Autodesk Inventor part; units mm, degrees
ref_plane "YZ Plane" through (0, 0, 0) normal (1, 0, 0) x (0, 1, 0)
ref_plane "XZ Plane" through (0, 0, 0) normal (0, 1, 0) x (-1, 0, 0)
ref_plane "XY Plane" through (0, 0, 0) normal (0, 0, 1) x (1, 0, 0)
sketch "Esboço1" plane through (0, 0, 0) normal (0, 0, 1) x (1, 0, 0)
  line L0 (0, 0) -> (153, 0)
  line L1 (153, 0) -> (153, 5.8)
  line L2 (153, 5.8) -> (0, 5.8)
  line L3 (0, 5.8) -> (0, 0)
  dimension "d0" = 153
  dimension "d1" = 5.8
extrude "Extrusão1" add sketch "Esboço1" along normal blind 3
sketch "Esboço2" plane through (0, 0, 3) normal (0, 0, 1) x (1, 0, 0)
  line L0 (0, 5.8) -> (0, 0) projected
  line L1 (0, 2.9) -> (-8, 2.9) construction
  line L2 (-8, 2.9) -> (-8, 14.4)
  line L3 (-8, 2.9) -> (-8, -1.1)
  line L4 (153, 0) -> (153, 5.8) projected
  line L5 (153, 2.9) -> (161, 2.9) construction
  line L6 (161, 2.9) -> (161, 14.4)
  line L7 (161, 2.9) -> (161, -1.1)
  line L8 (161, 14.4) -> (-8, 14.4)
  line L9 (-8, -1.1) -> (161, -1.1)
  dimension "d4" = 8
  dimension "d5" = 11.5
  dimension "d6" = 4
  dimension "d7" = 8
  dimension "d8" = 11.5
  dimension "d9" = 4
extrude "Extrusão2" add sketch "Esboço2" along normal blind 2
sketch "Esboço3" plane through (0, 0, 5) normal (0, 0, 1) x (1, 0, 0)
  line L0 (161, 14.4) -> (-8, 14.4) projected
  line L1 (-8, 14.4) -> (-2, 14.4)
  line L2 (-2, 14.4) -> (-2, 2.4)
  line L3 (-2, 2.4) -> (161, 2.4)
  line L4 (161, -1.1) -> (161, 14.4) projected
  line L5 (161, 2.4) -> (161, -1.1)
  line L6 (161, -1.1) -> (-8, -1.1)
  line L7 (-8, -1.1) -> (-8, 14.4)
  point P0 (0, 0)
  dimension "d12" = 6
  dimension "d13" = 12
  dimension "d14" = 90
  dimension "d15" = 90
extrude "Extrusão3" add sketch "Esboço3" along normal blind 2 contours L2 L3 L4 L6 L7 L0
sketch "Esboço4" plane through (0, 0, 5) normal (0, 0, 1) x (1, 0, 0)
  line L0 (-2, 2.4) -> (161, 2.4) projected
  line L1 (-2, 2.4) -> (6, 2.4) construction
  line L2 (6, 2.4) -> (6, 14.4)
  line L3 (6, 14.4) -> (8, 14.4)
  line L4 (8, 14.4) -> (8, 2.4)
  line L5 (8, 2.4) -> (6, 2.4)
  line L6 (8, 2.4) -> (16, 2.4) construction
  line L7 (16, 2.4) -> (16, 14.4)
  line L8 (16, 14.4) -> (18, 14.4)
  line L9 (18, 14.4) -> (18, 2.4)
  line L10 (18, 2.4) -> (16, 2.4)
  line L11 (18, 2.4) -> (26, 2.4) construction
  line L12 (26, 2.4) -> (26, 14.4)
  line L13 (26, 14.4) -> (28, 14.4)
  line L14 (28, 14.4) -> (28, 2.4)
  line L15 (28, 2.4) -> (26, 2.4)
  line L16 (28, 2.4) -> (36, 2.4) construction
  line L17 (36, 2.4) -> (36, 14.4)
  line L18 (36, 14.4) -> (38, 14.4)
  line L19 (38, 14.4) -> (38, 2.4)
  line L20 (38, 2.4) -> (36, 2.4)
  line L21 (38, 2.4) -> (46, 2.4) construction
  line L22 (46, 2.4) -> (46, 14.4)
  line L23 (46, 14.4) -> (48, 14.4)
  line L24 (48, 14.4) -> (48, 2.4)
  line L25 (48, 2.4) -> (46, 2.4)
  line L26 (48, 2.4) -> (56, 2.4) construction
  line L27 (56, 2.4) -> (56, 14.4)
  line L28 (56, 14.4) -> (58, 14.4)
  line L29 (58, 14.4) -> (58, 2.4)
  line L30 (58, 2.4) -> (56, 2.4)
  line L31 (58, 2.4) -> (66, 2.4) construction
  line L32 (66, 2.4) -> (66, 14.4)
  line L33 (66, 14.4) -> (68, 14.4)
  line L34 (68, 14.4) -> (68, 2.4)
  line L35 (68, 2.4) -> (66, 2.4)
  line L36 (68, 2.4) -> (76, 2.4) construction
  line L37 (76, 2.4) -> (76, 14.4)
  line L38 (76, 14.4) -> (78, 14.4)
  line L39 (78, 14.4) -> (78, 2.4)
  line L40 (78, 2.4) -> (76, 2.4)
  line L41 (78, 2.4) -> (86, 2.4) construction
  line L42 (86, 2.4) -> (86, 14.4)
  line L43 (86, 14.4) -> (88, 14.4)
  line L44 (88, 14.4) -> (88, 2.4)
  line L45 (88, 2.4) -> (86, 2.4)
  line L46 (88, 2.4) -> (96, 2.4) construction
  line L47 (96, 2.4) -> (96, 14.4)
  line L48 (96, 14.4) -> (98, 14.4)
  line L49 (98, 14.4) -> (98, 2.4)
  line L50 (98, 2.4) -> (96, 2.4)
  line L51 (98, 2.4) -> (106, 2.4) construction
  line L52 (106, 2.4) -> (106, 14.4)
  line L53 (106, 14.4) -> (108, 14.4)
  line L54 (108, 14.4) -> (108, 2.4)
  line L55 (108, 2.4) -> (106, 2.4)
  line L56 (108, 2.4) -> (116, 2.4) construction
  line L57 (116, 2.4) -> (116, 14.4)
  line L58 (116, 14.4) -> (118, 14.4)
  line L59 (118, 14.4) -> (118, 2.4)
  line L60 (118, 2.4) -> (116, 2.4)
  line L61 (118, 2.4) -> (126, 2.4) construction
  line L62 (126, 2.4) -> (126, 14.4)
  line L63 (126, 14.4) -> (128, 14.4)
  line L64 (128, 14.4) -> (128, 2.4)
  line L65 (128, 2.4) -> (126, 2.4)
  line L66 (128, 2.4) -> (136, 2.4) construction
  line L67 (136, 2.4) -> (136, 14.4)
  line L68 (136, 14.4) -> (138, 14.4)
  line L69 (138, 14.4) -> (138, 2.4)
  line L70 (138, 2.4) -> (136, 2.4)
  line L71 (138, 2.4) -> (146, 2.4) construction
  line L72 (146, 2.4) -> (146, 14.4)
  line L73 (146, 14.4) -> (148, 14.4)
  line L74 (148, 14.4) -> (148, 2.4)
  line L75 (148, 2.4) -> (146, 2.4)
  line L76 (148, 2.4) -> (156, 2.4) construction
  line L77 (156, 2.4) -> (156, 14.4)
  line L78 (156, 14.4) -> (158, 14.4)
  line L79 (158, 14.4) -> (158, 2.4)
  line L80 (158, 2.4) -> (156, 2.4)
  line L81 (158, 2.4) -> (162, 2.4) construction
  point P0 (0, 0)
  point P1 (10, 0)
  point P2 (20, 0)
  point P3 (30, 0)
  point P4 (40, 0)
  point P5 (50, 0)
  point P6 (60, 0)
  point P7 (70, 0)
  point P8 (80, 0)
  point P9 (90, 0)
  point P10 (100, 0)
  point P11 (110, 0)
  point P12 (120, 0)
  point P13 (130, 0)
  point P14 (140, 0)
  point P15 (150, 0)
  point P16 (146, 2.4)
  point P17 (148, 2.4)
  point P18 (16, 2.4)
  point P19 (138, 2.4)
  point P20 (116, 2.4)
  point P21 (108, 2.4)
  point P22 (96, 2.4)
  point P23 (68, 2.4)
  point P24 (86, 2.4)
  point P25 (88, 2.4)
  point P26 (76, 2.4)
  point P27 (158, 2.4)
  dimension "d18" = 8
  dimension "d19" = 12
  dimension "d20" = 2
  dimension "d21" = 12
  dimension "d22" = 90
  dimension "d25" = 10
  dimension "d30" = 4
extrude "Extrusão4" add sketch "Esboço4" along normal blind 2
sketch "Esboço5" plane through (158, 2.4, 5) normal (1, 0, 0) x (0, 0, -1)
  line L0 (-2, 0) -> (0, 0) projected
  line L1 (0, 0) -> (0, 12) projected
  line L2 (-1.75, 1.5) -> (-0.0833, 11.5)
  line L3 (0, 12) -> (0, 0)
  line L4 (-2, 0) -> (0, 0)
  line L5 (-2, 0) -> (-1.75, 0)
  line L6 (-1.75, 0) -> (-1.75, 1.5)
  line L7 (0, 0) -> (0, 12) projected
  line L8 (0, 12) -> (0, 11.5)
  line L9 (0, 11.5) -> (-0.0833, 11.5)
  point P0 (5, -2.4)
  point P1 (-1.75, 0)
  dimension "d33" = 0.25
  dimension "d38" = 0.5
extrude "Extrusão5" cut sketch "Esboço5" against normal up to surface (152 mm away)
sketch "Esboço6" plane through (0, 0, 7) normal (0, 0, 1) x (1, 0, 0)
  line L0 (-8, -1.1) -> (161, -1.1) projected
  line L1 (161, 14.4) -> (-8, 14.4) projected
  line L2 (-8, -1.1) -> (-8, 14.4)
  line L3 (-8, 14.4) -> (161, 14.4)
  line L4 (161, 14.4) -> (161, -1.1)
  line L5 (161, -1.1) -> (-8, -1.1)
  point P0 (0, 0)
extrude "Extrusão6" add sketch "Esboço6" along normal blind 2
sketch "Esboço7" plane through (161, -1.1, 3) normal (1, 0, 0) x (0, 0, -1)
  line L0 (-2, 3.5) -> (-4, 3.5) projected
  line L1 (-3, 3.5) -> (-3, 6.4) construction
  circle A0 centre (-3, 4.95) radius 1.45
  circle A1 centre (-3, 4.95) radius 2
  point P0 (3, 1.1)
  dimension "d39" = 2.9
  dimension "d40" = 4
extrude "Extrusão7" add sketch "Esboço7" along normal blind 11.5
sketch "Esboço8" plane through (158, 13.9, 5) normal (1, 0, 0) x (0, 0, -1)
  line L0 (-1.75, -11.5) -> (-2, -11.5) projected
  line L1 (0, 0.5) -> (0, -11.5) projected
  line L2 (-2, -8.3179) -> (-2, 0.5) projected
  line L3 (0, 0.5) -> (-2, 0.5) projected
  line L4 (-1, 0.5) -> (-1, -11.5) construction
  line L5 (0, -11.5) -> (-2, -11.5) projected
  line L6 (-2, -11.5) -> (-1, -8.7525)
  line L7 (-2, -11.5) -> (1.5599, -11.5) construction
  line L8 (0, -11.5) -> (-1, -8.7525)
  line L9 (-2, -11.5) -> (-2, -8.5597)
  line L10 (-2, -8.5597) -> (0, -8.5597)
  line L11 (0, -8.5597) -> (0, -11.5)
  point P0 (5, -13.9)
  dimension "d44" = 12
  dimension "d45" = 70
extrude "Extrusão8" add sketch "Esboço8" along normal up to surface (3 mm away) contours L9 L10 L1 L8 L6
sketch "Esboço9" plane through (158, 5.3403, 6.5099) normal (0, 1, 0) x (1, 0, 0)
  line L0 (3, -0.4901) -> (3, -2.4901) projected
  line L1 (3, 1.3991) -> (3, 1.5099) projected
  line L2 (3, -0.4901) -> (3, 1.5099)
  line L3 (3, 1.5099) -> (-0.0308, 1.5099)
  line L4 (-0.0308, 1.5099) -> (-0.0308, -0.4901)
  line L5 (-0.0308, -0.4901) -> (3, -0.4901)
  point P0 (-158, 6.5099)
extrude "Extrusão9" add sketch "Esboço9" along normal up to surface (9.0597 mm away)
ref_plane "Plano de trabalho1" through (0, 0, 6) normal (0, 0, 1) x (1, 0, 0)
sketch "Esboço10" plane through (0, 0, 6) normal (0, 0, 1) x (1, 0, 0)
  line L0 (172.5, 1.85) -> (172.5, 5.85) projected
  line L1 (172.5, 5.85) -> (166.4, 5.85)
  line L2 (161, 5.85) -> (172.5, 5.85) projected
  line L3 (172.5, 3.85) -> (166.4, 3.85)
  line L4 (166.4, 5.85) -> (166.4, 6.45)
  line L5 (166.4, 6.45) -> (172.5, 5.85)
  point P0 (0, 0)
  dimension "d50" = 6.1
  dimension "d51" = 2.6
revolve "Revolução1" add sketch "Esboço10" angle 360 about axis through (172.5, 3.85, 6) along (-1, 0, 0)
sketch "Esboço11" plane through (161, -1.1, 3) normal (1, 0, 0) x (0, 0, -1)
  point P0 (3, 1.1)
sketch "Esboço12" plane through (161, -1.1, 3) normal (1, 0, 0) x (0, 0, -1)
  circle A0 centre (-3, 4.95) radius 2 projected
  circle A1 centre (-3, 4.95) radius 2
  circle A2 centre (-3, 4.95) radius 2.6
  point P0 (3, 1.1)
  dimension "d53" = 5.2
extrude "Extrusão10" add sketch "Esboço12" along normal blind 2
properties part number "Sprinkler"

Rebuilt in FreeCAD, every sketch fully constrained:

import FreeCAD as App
import Part
import Sketcher

V = App.Vector
Q = App.Units.Quantity

doc = App.newDocument("Part")
body = doc.addObject("PartDesign::Body", "Body")

# Sketch on XY plane
sketch1 = body.newObject("Sketcher::SketchObject", "Sketch")
sketch1.AttachmentSupport = (doc.getObject("XY_Plane"), [""])
sketch1.MapMode = "FlatFace"
sketch1.addGeometry(Part.LineSegment(V(0, 6, 0), V(0, 0, 0)), False)
sketch1.addGeometry(Part.LineSegment(V(0, 0, 0), V(153, 0, 0)), False)
sketch1.addGeometry(Part.LineSegment(V(153, 0, 0), V(153, 6, 0)), False)
sketch1.addGeometry(Part.LineSegment(V(153, 6, 0), V(0, 6, 0)), False)
sketch1.addConstraint(Sketcher.Constraint("Coincident", 0, 2, 1, 1))
sketch1.addConstraint(Sketcher.Constraint("Coincident", 1, 2, 2, 1))
sketch1.addConstraint(Sketcher.Constraint("Coincident", 2, 2, 3, 1))
sketch1.addConstraint(Sketcher.Constraint("Coincident", 3, 2, 0, 1))
sketch1.addConstraint(Sketcher.Constraint("Vertical", 0))
sketch1.addConstraint(Sketcher.Constraint("Horizontal", 1))
sketch1.addConstraint(Sketcher.Constraint("Vertical", 2))
sketch1.addConstraint(Sketcher.Constraint("Horizontal", 3))
sketch1.addConstraint(Sketcher.Constraint("Coincident", 0, 2, -1, 1))
sketch1.addConstraint(Sketcher.Constraint("DistanceX", 1, 1, 1, 2, Q("153 mm")))
sketch1.addConstraint(Sketcher.Constraint("DistanceY", 0, 2, 0, 1, Q("5.8 mm")))
pad1 = body.newObject("PartDesign::Pad", "Pad")
pad1.Profile = sketch1
pad1.Length = 3

# Sketch on XY plane
sketch2 = body.newObject("Sketcher::SketchObject", "Sketch001")
sketch2.AttachmentSupport = (doc.getObject("XY_Plane"), [""])
sketch2.MapMode = "FlatFace"
sketch2.AttachmentOffset = App.Placement(V(0, 0, 3), App.Rotation())
sketch2.addGeometry(Part.LineSegment(V(-8, 14, 0), V(-8, -1, 0)), False)
sketch2.addGeometry(Part.LineSegment(V(-8, -1, 0), V(161, -1, 0)), False)
sketch2.addGeometry(Part.LineSegment(V(161, -1, 0), V(161, 14, 0)), False)
sketch2.addGeometry(Part.LineSegment(V(161, 14, 0), V(-8, 14, 0)), False)
sketch2.addConstraint(Sketcher.Constraint("Coincident", 0, 2, 1, 1))
sketch2.addConstraint(Sketcher.Constraint("Coincident", 1, 2, 2, 1))
sketch2.addConstraint(Sketcher.Constraint("Coincident", 2, 2, 3, 1))
sketch2.addConstraint(Sketcher.Constraint("Coincident", 3, 2, 0, 1))
sketch2.addConstraint(Sketcher.Constraint("Vertical", 0))
sketch2.addConstraint(Sketcher.Constraint("Horizontal", 1))
sketch2.addConstraint(Sketcher.Constraint("Vertical", 2))
sketch2.addConstraint(Sketcher.Constraint("Horizontal", 3))
sketch2.addConstraint(Sketcher.Constraint("DistanceX", 0, 2, -1, 1, Q("8 mm")))
sketch2.addConstraint(Sketcher.Constraint("DistanceX", 1, 1, 1, 2, Q("169 mm")))
sketch2.addConstraint(Sketcher.Constraint("DistanceY", 0, 2, 0, 1, Q("15.5 mm")))
sketch2.addConstraint(Sketcher.Constraint("DistanceY", 0, 2, -1, 1, Q("1.1 mm")))
pad2 = body.newObject("PartDesign::Pad", "Pad001")
pad2.Profile = sketch2
pad2.Length = 2

# Sketch on XY plane
sketch3 = body.newObject("Sketcher::SketchObject", "Sketch002")
sketch3.AttachmentSupport = (doc.getObject("XY_Plane"), [""])
sketch3.MapMode = "FlatFace"
sketch3.AttachmentOffset = App.Placement(V(0, 0, 5), App.Rotation())
sketch3.addGeometry(Part.LineSegment(V(-2, 2.4, 0), V(-2, 14.4, 0)), False)
sketch3.addGeometry(Part.LineSegment(V(-2, 14.4, 0), V(-8, 14.4, 0)), False)
sketch3.addGeometry(Part.LineSegment(V(-8, 14.4, 0), V(-8, -1.1, 0)), False)
sketch3.addGeometry(Part.LineSegment(V(-8, -1.1, 0), V(161, -1.1, 0)), False)
sketch3.addGeometry(Part.LineSegment(V(161, -1.1, 0), V(161, 2.4, 0)), False)
sketch3.addGeometry(Part.LineSegment(V(161, 2.4, 0), V(-2, 2.4, 0)), False)
sketch3.addConstraint(Sketcher.Constraint("Coincident", 0, 2, 1, 1))
sketch3.addConstraint(Sketcher.Constraint("Coincident", 1, 2, 2, 1))
sketch3.addConstraint(Sketcher.Constraint("Coincident", 2, 2, 3, 1))
sketch3.addConstraint(Sketcher.Constraint("Coincident", 3, 2, 4, 1))
sketch3.addConstraint(Sketcher.Constraint("Coincident", 4, 2, 5, 1))
sketch3.addConstraint(Sketcher.Constraint("Coincident", 5, 2, 0, 1))
sketch3.addConstraint(Sketcher.Constraint("Vertical", 0))
sketch3.addConstraint(Sketcher.Constraint("Horizontal", 1))
sketch3.addConstraint(Sketcher.Constraint("Vertical", 2))
sketch3.addConstraint(Sketcher.Constraint("Horizontal", 3))
sketch3.addConstraint(Sketcher.Constraint("Vertical", 4))
sketch3.addConstraint(Sketcher.Constraint("Horizontal", 5))
sketch3.addConstraint(Sketcher.Constraint("DistanceX", 1, 2, 1, 1, Q("6 mm")))
sketch3.addConstraint(Sketcher.Constraint("DistanceY", 0, 1, 0, 2, Q("12 mm")))
sketch3.addConstraint(Sketcher.Constraint("DistanceX", 3, 1, 3, 2, Q("169 mm")))
sketch3.addConstraint(Sketcher.Constraint("DistanceY", 2, 2, 2, 1, Q("15.5 mm")))
sketch3.addConstraint(Sketcher.Constraint("DistanceX", 0, 2, -1, 1, Q("2 mm")))
sketch3.addConstraint(Sketcher.Constraint("DistanceY", -1, 1, 0, 2, Q("14.4 mm")))
pad3 = body.newObject("PartDesign::Pad", "Pad002")
pad3.Profile = sketch3
pad3.Length = 2

# Sketch on XY plane
sketch4 = body.newObject("Sketcher::SketchObject", "Sketch003")
sketch4.AttachmentSupport = (doc.getObject("XY_Plane"), [""])
sketch4.MapMode = "FlatFace"
sketch4.AttachmentOffset = App.Placement(V(0, 0, 5), App.Rotation())
sketch4.addGeometry(Part.LineSegment(V(6, 14.4, 0), V(6, 2.4, 0)), False)
sketch4.addGeometry(Part.LineSegment(V(6, 2.4, 0), V(8, 2.4, 0)), False)
sketch4.addGeometry(Part.LineSegment(V(8, 2.4, 0), V(8, 14.4, 0)), False)
sketch4.addGeometry(Part.LineSegment(V(8, 14.4, 0), V(6, 14.4, 0)), False)
sketch4.addGeometry(Part.LineSegment(V(156, 14.4, 0), V(156, 2.4, 0)), False)
sketch4.addGeometry(Part.LineSegment(V(156, 2.4, 0), V(158, 2.4, 0)), False)
sketch4.addGeometry(Part.LineSegment(V(158, 2.4, 0), V(158, 14.4, 0)), False)
sketch4.addGeometry(Part.LineSegment(V(158, 14.4, 0), V(156, 14.4, 0)), False)
sketch4.addGeometry(Part.LineSegment(V(146, 14.4, 0), V(146, 2.4, 0)), False)
sketch4.addGeometry(Part.LineSegment(V(146, 2.4, 0), V(148, 2.4, 0)), False)
sketch4.addGeometry(Part.LineSegment(V(148, 2.4, 0), V(148, 14.4, 0)), False)
sketch4.addGeometry(Part.LineSegment(V(148, 14.4, 0), V(146, 14.4, 0)), False)
sketch4.addGeometry(Part.LineSegment(V(136, 14.4, 0), V(136, 2.4, 0)), False)
sketch4.addGeometry(Part.LineSegment(V(136, 2.4, 0), V(138, 2.4, 0)), False)
sketch4.addGeometry(Part.LineSegment(V(138, 2.4, 0), V(138, 14.4, 0)), False)
sketch4.addGeometry(Part.LineSegment(V(138, 14.4, 0), V(136, 14.4, 0)), False)
sketch4.addGeometry(Part.LineSegment(V(126, 14.4, 0), V(126, 2.4, 0)), False)
sketch4.addGeometry(Part.LineSegment(V(126, 2.4, 0), V(128, 2.4, 0)), False)
sketch4.addGeometry(Part.LineSegment(V(128, 2.4, 0), V(128, 14.4, 0)), False)
sketch4.addGeometry(Part.LineSegment(V(128, 14.4, 0), V(126, 14.4, 0)), False)
sketch4.addGeometry(Part.LineSegment(V(116, 14.4, 0), V(116, 2.4, 0)), False)
sketch4.addGeometry(Part.LineSegment(V(116, 2.4, 0), V(118, 2.4, 0)), False)
sketch4.addGeometry(Part.LineSegment(V(118, 2.4, 0), V(118, 14.4, 0)), False)
sketch4.addGeometry(Part.LineSegment(V(118, 14.4, 0), V(116, 14.4, 0)), False)
sketch4.addGeometry(Part.LineSegment(V(106, 14.4, 0), V(106, 2.4, 0)), False)
sketch4.addGeometry(Part.LineSegment(V(106, 2.4, 0), V(108, 2.4, 0)), False)
sketch4.addGeometry(Part.LineSegment(V(108, 2.4, 0), V(108, 14.4, 0)), False)
sketch4.addGeometry(Part.LineSegment(V(108, 14.4, 0), V(106, 14.4, 0)), False)
sketch4.addGeometry(Part.LineSegment(V(96, 14.4, 0), V(96, 2.4, 0)), False)
sketch4.addGeometry(Part.LineSegment(V(96, 2.4, 0), V(98, 2.4, 0)), False)
sketch4.addGeometry(Part.LineSegment(V(98, 2.4, 0), V(98, 14.4, 0)), False)
sketch4.addGeometry(Part.LineSegment(V(98, 14.4, 0), V(96, 14.4, 0)), False)
sketch4.addGeometry(Part.LineSegment(V(86, 14.4, 0), V(86, 2.4, 0)), False)
sketch4.addGeometry(Part.LineSegment(V(86, 2.4, 0), V(88, 2.4, 0)), False)
sketch4.addGeometry(Part.LineSegment(V(88, 2.4, 0), V(88, 14.4, 0)), False)
sketch4.addGeometry(Part.LineSegment(V(88, 14.4, 0), V(86, 14.4, 0)), False)
sketch4.addGeometry(Part.LineSegment(V(76, 14.4, 0), V(76, 2.4, 0)), False)
sketch4.addGeometry(Part.LineSegment(V(76, 2.4, 0), V(78, 2.4, 0)), False)
sketch4.addGeometry(Part.LineSegment(V(78, 2.4, 0), V(78, 14.4, 0)), False)
sketch4.addGeometry(Part.LineSegment(V(78, 14.4, 0), V(76, 14.4, 0)), False)
sketch4.addGeometry(Part.LineSegment(V(66, 14.4, 0), V(66, 2.4, 0)), False)
sketch4.addGeometry(Part.LineSegment(V(66, 2.4, 0), V(68, 2.4, 0)), False)
sketch4.addGeometry(Part.LineSegment(V(68, 2.4, 0), V(68, 14.4, 0)), False)
sketch4.addGeometry(Part.LineSegment(V(68, 14.4, 0), V(66, 14.4, 0)), False)
sketch4.addGeometry(Part.LineSegment(V(56, 14.4, 0), V(56, 2.4, 0)), False)
sketch4.addGeometry(Part.LineSegment(V(56, 2.4, 0), V(58, 2.4, 0)), False)
sketch4.addGeometry(Part.LineSegment(V(58, 2.4, 0), V(58, 14.4, 0)), False)
sketch4.addGeometry(Part.LineSegment(V(58, 14.4, 0), V(56, 14.4, 0)), False)
sketch4.addGeometry(Part.LineSegment(V(46, 14.4, 0), V(46, 2.4, 0)), False)
sketch4.addGeometry(Part.LineSegment(V(46, 2.4, 0), V(48, 2.4, 0)), False)
sketch4.addGeometry(Part.LineSegment(V(48, 2.4, 0), V(48, 14.4, 0)), False)
sketch4.addGeometry(Part.LineSegment(V(48, 14.4, 0), V(46, 14.4, 0)), False)
sketch4.addGeometry(Part.LineSegment(V(36, 14.4, 0), V(36, 2.4, 0)), False)
sketch4.addGeometry(Part.LineSegment(V(36, 2.4, 0), V(38, 2.4, 0)), False)
sketch4.addGeometry(Part.LineSegment(V(38, 2.4, 0), V(38, 14.4, 0)), False)
sketch4.addGeometry(Part.LineSegment(V(38, 14.4, 0), V(36, 14.4, 0)), False)
sketch4.addGeometry(Part.LineSegment(V(26, 14.4, 0), V(26, 2.4, 0)), False)
sketch4.addGeometry(Part.LineSegment(V(26, 2.4, 0), V(28, 2.4, 0)), False)
sketch4.addGeometry(Part.LineSegment(V(28, 2.4, 0), V(28, 14.4, 0)), False)
sketch4.addGeometry(Part.LineSegment(V(28, 14.4, 0), V(26, 14.4, 0)), False)
sketch4.addGeometry(Part.LineSegment(V(16, 14.4, 0), V(16, 2.4, 0)), False)
sketch4.addGeometry(Part.LineSegment(V(16, 2.4, 0), V(18, 2.4, 0)), False)
sketch4.addGeometry(Part.LineSegment(V(18, 2.4, 0), V(18, 14.4, 0)), False)
sketch4.addGeometry(Part.LineSegment(V(18, 14.4, 0), V(16, 14.4, 0)), False)
sketch4.addConstraint(Sketcher.Constraint("Coincident", 0, 2, 1, 1))
sketch4.addConstraint(Sketcher.Constraint("Coincident", 1, 2, 2, 1))
sketch4.addConstraint(Sketcher.Constraint("Coincident", 2, 2, 3, 1))
sketch4.addConstraint(Sketcher.Constraint("Coincident", 3, 2, 0, 1))
sketch4.addConstraint(Sketcher.Constraint("Coincident", 4, 2, 5, 1))
sketch4.addConstraint(Sketcher.Constraint("Coincident", 5, 2, 6, 1))
sketch4.addConstraint(Sketcher.Constraint("Coincident", 6, 2, 7, 1))
sketch4.addConstraint(Sketcher.Constraint("Coincident", 7, 2, 4, 1))
sketch4.addConstraint(Sketcher.Constraint("Coincident", 8, 2, 9, 1))
sketch4.addConstraint(Sketcher.Constraint("Coincident", 9, 2, 10, 1))
sketch4.addConstraint(Sketcher.Constraint("Coincident", 10, 2, 11, 1))
sketch4.addConstraint(Sketcher.Constraint("Coincident", 11, 2, 8, 1))
sketch4.addConstraint(Sketcher.Constraint("Coincident", 12, 2, 13, 1))
sketch4.addConstraint(Sketcher.Constraint("Coincident", 13, 2, 14, 1))
sketch4.addConstraint(Sketcher.Constraint("Coincident", 14, 2, 15, 1))
sketch4.addConstraint(Sketcher.Constraint("Coincident", 15, 2, 12, 1))
sketch4.addConstraint(Sketcher.Constraint("Coincident", 16, 2, 17, 1))
sketch4.addConstraint(Sketcher.Constraint("Coincident", 17, 2, 18, 1))
sketch4.addConstraint(Sketcher.Constraint("Coincident", 18, 2, 19, 1))
sketch4.addConstraint(Sketcher.Constraint("Coincident", 19, 2, 16, 1))
sketch4.addConstraint(Sketcher.Constraint("Coincident", 20, 2, 21, 1))
sketch4.addConstraint(Sketcher.Constraint("Coincident", 21, 2, 22, 1))
sketch4.addConstraint(Sketcher.Constraint("Coincident", 22, 2, 23, 1))
sketch4.addConstraint(Sketcher.Constraint("Coincident", 23, 2, 20, 1))
sketch4.addConstraint(Sketcher.Constraint("Coincident", 24, 2, 25, 1))
sketch4.addConstraint(Sketcher.Constraint("Coincident", 25, 2, 26, 1))
sketch4.addConstraint(Sketcher.Constraint("Coincident", 26, 2, 27, 1))
sketch4.addConstraint(Sketcher.Constraint("Coincident", 27, 2, 24, 1))
sketch4.addConstraint(Sketcher.Constraint("Coincident", 28, 2, 29, 1))
sketch4.addConstraint(Sketcher.Constraint("Coincident", 29, 2, 30, 1))
sketch4.addConstraint(Sketcher.Constraint("Coincident", 30, 2, 31, 1))
sketch4.addConstraint(Sketcher.Constraint("Coincident", 31, 2, 28, 1))
sketch4.addConstraint(Sketcher.Constraint("Coincident", 32, 2, 33, 1))
sketch4.addConstraint(Sketcher.Constraint("Coincident", 33, 2, 34, 1))
sketch4.addConstraint(Sketcher.Constraint("Coincident", 34, 2, 35, 1))
sketch4.addConstraint(Sketcher.Constraint("Coincident", 35, 2, 32, 1))
sketch4.addConstraint(Sketcher.Constraint("Coincident", 36, 2, 37, 1))
sketch4.addConstraint(Sketcher.Constraint("Coincident", 37, 2, 38, 1))
sketch4.addConstraint(Sketcher.Constraint("Coincident", 38, 2, 39, 1))
sketch4.addConstraint(Sketcher.Constraint("Coincident", 39, 2, 36, 1))
sketch4.addConstraint(Sketcher.Constraint("Coincident", 40, 2, 41, 1))
sketch4.addConstraint(Sketcher.Constraint("Coincident", 41, 2, 42, 1))
sketch4.addConstraint(Sketcher.Constraint("Coincident", 42, 2, 43, 1))
sketch4.addConstraint(Sketcher.Constraint("Coincident", 43, 2, 40, 1))
sketch4.addConstraint(Sketcher.Constraint("Coincident", 44, 2, 45, 1))
sketch4.addConstraint(Sketcher.Constraint("Coincident", 45, 2, 46, 1))
sketch4.addConstraint(Sketcher.Constraint("Coincident", 46, 2, 47, 1))
sketch4.addConstraint(Sketcher.Constraint("Coincident", 47, 2, 44, 1))
sketch4.addConstraint(Sketcher.Constraint("Coincident", 48, 2, 49, 1))
sketch4.addConstraint(Sketcher.Constraint("Coincident", 49, 2, 50, 1))
sketch4.addConstraint(Sketcher.Constraint("Coincident", 50, 2, 51, 1))
sketch4.addConstraint(Sketcher.Constraint("Coincident", 51, 2, 48, 1))
sketch4.addConstraint(Sketcher.Constraint("Coincident", 52, 2, 53, 1))
sketch4.addConstraint(Sketcher.Constraint("Coincident", 53, 2, 54, 1))
sketch4.addConstraint(Sketcher.Constraint("Coincident", 54, 2, 55, 1))
sketch4.addConstraint(Sketcher.Constraint("Coincident", 55, 2, 52, 1))
sketch4.addConstraint(Sketcher.Constraint("Coincident", 56, 2, 57, 1))
sketch4.addConstraint(Sketcher.Constraint("Coincident", 57, 2, 58, 1))
sketch4.addConstraint(Sketcher.Constraint("Coincident", 58, 2, 59, 1))
sketch4.addConstraint(Sketcher.Constraint("Coincident", 59, 2, 56, 1))
sketch4.addConstraint(Sketcher.Constraint("Coincident", 60, 2, 61, 1))
sketch4.addConstraint(Sketcher.Constraint("Coincident", 61, 2, 62, 1))
sketch4.addConstraint(Sketcher.Constraint("Coincident", 62, 2, 63, 1))
sketch4.addConstraint(Sketcher.Constraint("Coincident", 63, 2, 60, 1))
sketch4.addConstraint(Sketcher.Constraint("Vertical", 0))
sketch4.addConstraint(Sketcher.Constraint("Horizontal", 1))
sketch4.addConstraint(Sketcher.Constraint("Vertical", 2))
sketch4.addConstraint(Sketcher.Constraint("Horizontal", 3))
sketch4.addConstraint(Sketcher.Constraint("Vertical", 4))
sketch4.addConstraint(Sketcher.Constraint("Horizontal", 5))
sketch4.addConstraint(Sketcher.Constraint("Vertical", 6))
sketch4.addConstraint(Sketcher.Constraint("Horizontal", 7))
sketch4.addConstraint(Sketcher.Constraint("Vertical", 8))
sketch4.addConstraint(Sketcher.Constraint("Horizontal", 9))
sketch4.addConstraint(Sketcher.Constraint("Vertical", 10))
sketch4.addConstraint(Sketcher.Constraint("Horizontal", 11))
sketch4.addConstraint(Sketcher.Constraint("Vertical", 12))
sketch4.addConstraint(Sketcher.Constraint("Horizontal", 13))
sketch4.addConstraint(Sketcher.Constraint("Vertical", 14))
sketch4.addConstraint(Sketcher.Constraint("Horizontal", 15))
sketch4.addConstraint(Sketcher.Constraint("Vertical", 16))
sketch4.addConstraint(Sketcher.Constraint("Horizontal", 17))
sketch4.addConstraint(Sketcher.Constraint("Vertical", 18))
sketch4.addConstraint(Sketcher.Constraint("Horizontal", 19))
sketch4.addConstraint(Sketcher.Constraint("Vertical", 20))
sketch4.addConstraint(Sketcher.Constraint("Horizontal", 21))
sketch4.addConstraint(Sketcher.Constraint("Vertical", 22))
sketch4.addConstraint(Sketcher.Constraint("Horizontal", 23))
sketch4.addConstraint(Sketcher.Constraint("Vertical", 24))
sketch4.addConstraint(Sketcher.Constraint("Horizontal", 25))
sketch4.addConstraint(Sketcher.Constraint("Vertical", 26))
sketch4.addConstraint(Sketcher.Constraint("Horizontal", 27))
sketch4.addConstraint(Sketcher.Constraint("Vertical", 28))
sketch4.addConstraint(Sketcher.Constraint("Horizontal", 29))
sketch4.addConstraint(Sketcher.Constraint("Vertical", 30))
sketch4.addConstraint(Sketcher.Constraint("Horizontal", 31))
sketch4.addConstraint(Sketcher.Constraint("Vertical", 32))
sketch4.addConstraint(Sketcher.Constraint("Horizontal", 33))
sketch4.addConstraint(Sketcher.Constraint("Vertical", 34))
sketch4.addConstraint(Sketcher.Constraint("Horizontal", 35))
sketch4.addConstraint(Sketcher.Constraint("Vertical", 36))
sketch4.addConstraint(Sketcher.Constraint("Horizontal", 37))
sketch4.addConstraint(Sketcher.Constraint("Vertical", 38))
sketch4.addConstraint(Sketcher.Constraint("Horizontal", 39))
sketch4.addConstraint(Sketcher.Constraint("Vertical", 40))
sketch4.addConstraint(Sketcher.Constraint("Horizontal", 41))
sketch4.addConstraint(Sketcher.Constraint("Vertical", 42))
sketch4.addConstraint(Sketcher.Constraint("Horizontal", 43))
sketch4.addConstraint(Sketcher.Constraint("Vertical", 44))
sketch4.addConstraint(Sketcher.Constraint("Horizontal", 45))
sketch4.addConstraint(Sketcher.Constraint("Vertical", 46))
sketch4.addConstraint(Sketcher.Constraint("Horizontal", 47))
sketch4.addConstraint(Sketcher.Constraint("Vertical", 48))
sketch4.addConstraint(Sketcher.Constraint("Horizontal", 49))
sketch4.addConstraint(Sketcher.Constraint("Vertical", 50))
sketch4.addConstraint(Sketcher.Constraint("Horizontal", 51))
sketch4.addConstraint(Sketcher.Constraint("Vertical", 52))
sketch4.addConstraint(Sketcher.Constraint("Horizontal", 53))
sketch4.addConstraint(Sketcher.Constraint("Vertical", 54))
sketch4.addConstraint(Sketcher.Constraint("Horizontal", 55))
sketch4.addConstraint(Sketcher.Constraint("Vertical", 56))
sketch4.addConstraint(Sketcher.Constraint("Horizontal", 57))
sketch4.addConstraint(Sketcher.Constraint("Vertical", 58))
sketch4.addConstraint(Sketcher.Constraint("Horizontal", 59))
sketch4.addConstraint(Sketcher.Constraint("Vertical", 60))
sketch4.addConstraint(Sketcher.Constraint("Horizontal", 61))
sketch4.addConstraint(Sketcher.Constraint("Vertical", 62))
sketch4.addConstraint(Sketcher.Constraint("Horizontal", 63))
sketch4.addConstraint(Sketcher.Constraint("Horizontal", 1, 2, 4, 2))
sketch4.addConstraint(Sketcher.Constraint("Horizontal", 3, 2, 6, 2))
sketch4.addConstraint(Sketcher.Constraint("Horizontal", 5, 2, 8, 2))
sketch4.addConstraint(Sketcher.Constraint("Horizontal", 7, 2, 10, 2))
sketch4.addConstraint(Sketcher.Constraint("Horizontal", 9, 2, 12, 2))
sketch4.addConstraint(Sketcher.Constraint("Horizontal", 11, 2, 14, 2))
sketch4.addConstraint(Sketcher.Constraint("Horizontal", 13, 2, 16, 2))
sketch4.addConstraint(Sketcher.Constraint("Horizontal", 15, 2, 18, 2))
sketch4.addConstraint(Sketcher.Constraint("Horizontal", 17, 2, 20, 2))
sketch4.addConstraint(Sketcher.Constraint("Horizontal", 19, 2, 22, 2))
sketch4.addConstraint(Sketcher.Constraint("Horizontal", 21, 2, 24, 2))
sketch4.addConstraint(Sketcher.Constraint("Horizontal", 23, 2, 26, 2))
sketch4.addConstraint(Sketcher.Constraint("Horizontal", 25, 2, 28, 2))
sketch4.addConstraint(Sketcher.Constraint("Horizontal", 27, 2, 30, 2))
sketch4.addConstraint(Sketcher.Constraint("Horizontal", 29, 2, 32, 2))
sketch4.addConstraint(Sketcher.Constraint("Horizontal", 31, 2, 34, 2))
sketch4.addConstraint(Sketcher.Constraint("Horizontal", 33, 2, 36, 2))
sketch4.addConstraint(Sketcher.Constraint("Horizontal", 35, 2, 38, 2))
sketch4.addConstraint(Sketcher.Constraint("Horizontal", 37, 2, 40, 2))
sketch4.addConstraint(Sketcher.Constraint("Horizontal", 39, 2, 42, 2))
sketch4.addConstraint(Sketcher.Constraint("Horizontal", 41, 2, 44, 2))
sketch4.addConstraint(Sketcher.Constraint("Horizontal", 43, 2, 46, 2))
sketch4.addConstraint(Sketcher.Constraint("Horizontal", 45, 2, 48, 2))
sketch4.addConstraint(Sketcher.Constraint("Horizontal", 47, 2, 50, 2))
sketch4.addConstraint(Sketcher.Constraint("Horizontal", 49, 2, 52, 2))
sketch4.addConstraint(Sketcher.Constraint("Horizontal", 51, 2, 54, 2))
sketch4.addConstraint(Sketcher.Constraint("Horizontal", 53, 2, 56, 2))
sketch4.addConstraint(Sketcher.Constraint("Horizontal", 55, 2, 58, 2))
sketch4.addConstraint(Sketcher.Constraint("Horizontal", 57, 2, 60, 2))
sketch4.addConstraint(Sketcher.Constraint("Horizontal", 59, 2, 62, 2))
sketch4.addConstraint(Sketcher.Constraint("Equal", 3, 5))
sketch4.addConstraint(Sketcher.Constraint("Equal", 7, 9))
sketch4.addConstraint(Sketcher.Constraint("Equal", 11, 13))
sketch4.addConstraint(Sketcher.Constraint("Equal", 15, 17))
sketch4.addConstraint(Sketcher.Constraint("Equal", 19, 21))
sketch4.addConstraint(Sketcher.Constraint("Equal", 23, 25))
sketch4.addConstraint(Sketcher.Constraint("Equal", 27, 29))
sketch4.addConstraint(Sketcher.Constraint("Equal", 31, 33))
sketch4.addConstraint(Sketcher.Constraint("Equal", 35, 37))
sketch4.addConstraint(Sketcher.Constraint("Equal", 39, 41))
sketch4.addConstraint(Sketcher.Constraint("Equal", 43, 45))
sketch4.addConstraint(Sketcher.Constraint("Equal", 47, 49))
sketch4.addConstraint(Sketcher.Constraint("Equal", 51, 53))
sketch4.addConstraint(Sketcher.Constraint("Equal", 55, 57))
sketch4.addConstraint(Sketcher.Constraint("Equal", 59, 61))
sketch4.addConstraint(Sketcher.Constraint("DistanceX", 1, 1, 1, 2, Q("2 mm")))
sketch4.addConstraint(Sketcher.Constraint("DistanceY", 0, 2, 0, 1, Q("12 mm")))
sketch4.addConstraint(Sketcher.Constraint("DistanceX", -1, 1, 1, 2, Q("8 mm")))
sketch4.addConstraint(Sketcher.Constraint("DistanceX", -1, 1, 4, 2, Q("156 mm")))
sketch4.addConstraint(Sketcher.Constraint("DistanceX", -1, 1, 8, 2, Q("146 mm")))
sketch4.addConstraint(Sketcher.Constraint("DistanceX", -1, 1, 12, 2, Q("136 mm")))
sketch4.addConstraint(Sketcher.Constraint("DistanceX", -1, 1, 16, 2, Q("126 mm")))
sketch4.addConstraint(Sketcher.Constraint("DistanceX", -1, 1, 20, 2, Q("116 mm")))
sketch4.addConstraint(Sketcher.Constraint("DistanceX", -1, 1, 24, 2, Q("106 mm")))
sketch4.addConstraint(Sketcher.Constraint("DistanceX", -1, 1, 28, 2, Q("96 mm")))
sketch4.addConstraint(Sketcher.Constraint("DistanceX", -1, 1, 32, 2, Q("86 mm")))
sketch4.addConstraint(Sketcher.Constraint("DistanceX", -1, 1, 36, 2, Q("76 mm")))
sketch4.addConstraint(Sketcher.Constraint("DistanceX", -1, 1, 40, 2, Q("66 mm")))
sketch4.addConstraint(Sketcher.Constraint("DistanceX", -1, 1, 44, 2, Q("56 mm")))
sketch4.addConstraint(Sketcher.Constraint("DistanceX", -1, 1, 48, 2, Q("46 mm")))
sketch4.addConstraint(Sketcher.Constraint("DistanceX", -1, 1, 52, 2, Q("36 mm")))
sketch4.addConstraint(Sketcher.Constraint("DistanceX", -1, 1, 56, 2, Q("26 mm")))
sketch4.addConstraint(Sketcher.Constraint("DistanceX", -1, 1, 60, 2, Q("16 mm")))
sketch4.addConstraint(Sketcher.Constraint("DistanceY", -1, 1, 0, 2, Q("2.4 mm")))
pad4 = body.newObject("PartDesign::Pad", "Pad003")
pad4.Profile = sketch4
pad4.Length = 2

# Sketch on YZ plane
sketch5 = body.newObject("Sketcher::SketchObject", "Sketch004")
sketch5.AttachmentSupport = (doc.getObject("YZ_Plane"), [""])
sketch5.MapMode = "FlatFace"
sketch5.AttachmentOffset = App.Placement(V(0, 0, 158), App.Rotation())
sketch5.addGeometry(Part.LineSegment(V(3.9, 6.75, 0), V(2.4, 6.75, 0)), False)
sketch5.addGeometry(Part.LineSegment(V(2.4, 6.75, 0), V(2.4, 5, 0)), False)
sketch5.addGeometry(Part.LineSegment(V(2.4, 5, 0), V(13.9, 5, 0)), False)
sketch5.addGeometry(Part.LineSegment(V(13.9, 5, 0), V(13.9, 5.08, 0)), False)
sketch5.addGeometry(Part.LineSegment(V(13.9, 5.08, 0), V(3.9, 6.75, 0)), False)
sketch5.addConstraint(Sketcher.Constraint("Coincident", 0, 2, 1, 1))
sketch5.addConstraint(Sketcher.Constraint("Coincident", 1, 2, 2, 1))
sketch5.addConstraint(Sketcher.Constraint("Coincident", 2, 2, 3, 1))
sketch5.addConstraint(Sketcher.Constraint("Coincident", 3, 2, 4, 1))
sketch5.addConstraint(Sketcher.Constraint("Coincident", 4, 2, 0, 1))
sketch5.addConstraint(Sketcher.Constraint("Horizontal", 0))
sketch5.addConstraint(Sketcher.Constraint("Vertical", 1))
sketch5.addConstraint(Sketcher.Constraint("Horizontal", 2))
sketch5.addConstraint(Sketcher.Constraint("Vertical", 3))
sketch5.addConstraint(Sketcher.Constraint("DistanceX", 0, 2, 0, 1, Q("1.5 mm")))
sketch5.addConstraint(Sketcher.Constraint("DistanceX", 2, 1, 2, 2, Q("11.5 mm")))
sketch5.addConstraint(Sketcher.Constraint("DistanceY", -1, 1, 1, 2, Q("5 mm")))
sketch5.addConstraint(Sketcher.Constraint("DistanceY", 1, 2, 1, 1, Q("1.75 mm")))
sketch5.addConstraint(Sketcher.Constraint("DistanceX", -1, 1, 0, 2, Q("2.4 mm")))
sketch5.addConstraint(Sketcher.Constraint("Distance", 4, Q("10.138 mm")))
pocket1 = body.newObject("PartDesign::Pocket", "Pocket")
pocket1.Profile = sketch5
pocket1.Length = 152

# Sketch on XY plane
sketch6 = body.newObject("Sketcher::SketchObject", "Sketch005")
sketch6.AttachmentSupport = (doc.getObject("XY_Plane"), [""])
sketch6.MapMode = "FlatFace"
sketch6.AttachmentOffset = App.Placement(V(0, 0, 7), App.Rotation())
sketch6.addGeometry(Part.LineSegment(V(-8, 14, 0), V(-8, -1, 0)), False)
sketch6.addGeometry(Part.LineSegment(V(-8, -1, 0), V(161, -1, 0)), False)
sketch6.addGeometry(Part.LineSegment(V(161, -1, 0), V(161, 14, 0)), False)
sketch6.addGeometry(Part.LineSegment(V(161, 14, 0), V(-8, 14, 0)), False)
sketch6.addConstraint(Sketcher.Constraint("Coincident", 0, 2, 1, 1))
sketch6.addConstraint(Sketcher.Constraint("Coincident", 1, 2, 2, 1))
sketch6.addConstraint(Sketcher.Constraint("Coincident", 2, 2, 3, 1))
sketch6.addConstraint(Sketcher.Constraint("Coincident", 3, 2, 0, 1))
sketch6.addConstraint(Sketcher.Constraint("Vertical", 0))
sketch6.addConstraint(Sketcher.Constraint("Horizontal", 1))
sketch6.addConstraint(Sketcher.Constraint("Vertical", 2))
sketch6.addConstraint(Sketcher.Constraint("Horizontal", 3))
sketch6.addConstraint(Sketcher.Constraint("DistanceX", 1, 1, 1, 2, Q("169 mm")))
sketch6.addConstraint(Sketcher.Constraint("DistanceY", 0, 2, 0, 1, Q("15.5 mm")))
sketch6.addConstraint(Sketcher.Constraint("DistanceX", 0, 2, -1, 1, Q("8 mm")))
sketch6.addConstraint(Sketcher.Constraint("DistanceY", 0, 2, -1, 1, Q("1.1 mm")))
pad5 = body.newObject("PartDesign::Pad", "Pad004")
pad5.Profile = sketch6
pad5.Length = 2

# Sketch on YZ plane
sketch7 = body.newObject("Sketcher::SketchObject", "Sketch006")
sketch7.AttachmentSupport = (doc.getObject("YZ_Plane"), [""])
sketch7.MapMode = "FlatFace"
sketch7.AttachmentOffset = App.Placement(V(0, 0, 161), App.Rotation())
sketch7.addGeometry(Part.Circle(V(3.9, 6, 0), V(0, 0, 1), 2), False)
sketch7.addGeometry(Part.Circle(V(3.9, 6, 0), V(0, 0, 1), 1.4), False)
sketch7.addConstraint(Sketcher.Constraint("Coincident", 1, 3, 0, 3))
sketch7.addConstraint(Sketcher.Constraint("Diameter", 0, Q("4 mm")))
sketch7.addConstraint(Sketcher.Constraint("Diameter", 1, Q("2.9 mm")))
sketch7.addConstraint(Sketcher.Constraint("DistanceY", -1, 1, 0, 3, Q("6 mm")))
sketch7.addConstraint(Sketcher.Constraint("DistanceX", -1, 1, 0, 3, Q("3.85 mm")))
pad6 = body.newObject("PartDesign::Pad", "Pad005")
pad6.Profile = sketch7
pad6.Length = 11.5

# Sketch on YZ plane
sketch8 = body.newObject("Sketcher::SketchObject", "Sketch007")
sketch8.AttachmentSupport = (doc.getObject("YZ_Plane"), [""])
sketch8.MapMode = "FlatFace"
sketch8.AttachmentOffset = App.Placement(V(0, 0, 158), App.Rotation())
sketch8.addGeometry(Part.LineSegment(V(5.3, 7, 0), V(2.4, 7, 0)), False)
sketch8.addGeometry(Part.LineSegment(V(2.4, 7, 0), V(5.1, 6, 0)), False)
sketch8.addGeometry(Part.LineSegment(V(5.1, 6, 0), V(2.4, 5, 0)), False)
sketch8.addGeometry(Part.LineSegment(V(2.4, 5, 0), V(5.3, 5, 0)), False)
sketch8.addGeometry(Part.LineSegment(V(5.3, 5, 0), V(5.3, 7, 0)), False)
sketch8.addConstraint(Sketcher.Constraint("Coincident", 0, 2, 1, 1))
sketch8.addConstraint(Sketcher.Constraint("Coincident", 1, 2, 2, 1))
sketch8.addConstraint(Sketcher.Constraint("Coincident", 2, 2, 3, 1))
sketch8.addConstraint(Sketcher.Constraint("Coincident", 3, 2, 4, 1))
sketch8.addConstraint(Sketcher.Constraint("Coincident", 4, 2, 0, 1))
sketch8.addConstraint(Sketcher.Constraint("Horizontal", 0))
sketch8.addConstraint(Sketcher.Constraint("Horizontal", 3))
sketch8.addConstraint(Sketcher.Constraint("Vertical", 4))
sketch8.addConstraint(Sketcher.Constraint("Vertical", 0, 2, 2, 2))
sketch8.addConstraint(Sketcher.Constraint("Equal", 1, 2))
sketch8.addConstraint(Sketcher.Constraint("DistanceY", 4, 1, 4, 2, Q("2 mm")))
sketch8.addConstraint(Sketcher.Constraint("Angle", 1, Q("-19.9998 deg")))
sketch8.addConstraint(Sketcher.Constraint("DistanceY", -1, 1, 0, 2, Q("7 mm")))
sketch8.addConstraint(Sketcher.Constraint("DistanceX", -1, 1, 0, 2, Q("2.4 mm")))
sketch8.addConstraint(Sketcher.Constraint("DistanceX", 0, 2, 0, 1, Q("2.9403 mm")))
pad7 = body.newObject("PartDesign::Pad", "Pad006")
pad7.Profile = sketch8
pad7.Length = 3

# Sketch on XZ plane
sketch9 = body.newObject("Sketcher::SketchObject", "Sketch008")
sketch9.AttachmentSupport = (doc.getObject("XZ_Plane"), [""])
sketch9.MapMode = "FlatFace"
sketch9.AttachmentOffset = App.Placement(V(0, 0, -5.3403), App.Rotation())
sketch9.addGeometry(Part.LineSegment(V(161, 7, 0), V(161, 5, 0)), False)
sketch9.addGeometry(Part.LineSegment(V(161, 5, 0), V(158, 5, 0)), False)
sketch9.addGeometry(Part.LineSegment(V(158, 5, 0), V(158, 7, 0)), False)
sketch9.addGeometry(Part.LineSegment(V(158, 7, 0), V(161, 7, 0)), False)
sketch9.addConstraint(Sketcher.Constraint("Coincident", 0, 2, 1, 1))
sketch9.addConstraint(Sketcher.Constraint("Coincident", 1, 2, 2, 1))
sketch9.addConstraint(Sketcher.Constraint("Coincident", 2, 2, 3, 1))
sketch9.addConstraint(Sketcher.Constraint("Coincident", 3, 2, 0, 1))
sketch9.addConstraint(Sketcher.Constraint("Vertical", 0))
sketch9.addConstraint(Sketcher.Constraint("Horizontal", 1))
sketch9.addConstraint(Sketcher.Constraint("Vertical", 2))
sketch9.addConstraint(Sketcher.Constraint("Horizontal", 3))
sketch9.addConstraint(Sketcher.Constraint("DistanceY", 0, 2, 0, 1, Q("2 mm")))
sketch9.addConstraint(Sketcher.Constraint("DistanceX", -1, 1, 0, 2, Q("161 mm")))
sketch9.addConstraint(Sketcher.Constraint("DistanceY", -1, 1, 0, 2, Q("5 mm")))
sketch9.addConstraint(Sketcher.Constraint("DistanceX", 1, 2, 1, 1, Q("3.0308 mm")))
pad8 = body.newObject("PartDesign::Pad", "Pad007")
pad8.Profile = sketch9
pad8.Length = 9.0597
pad8.Reversed = True

# Sketch on XY plane
sketch10 = body.newObject("Sketcher::SketchObject", "Sketch009")
sketch10.AttachmentSupport = (doc.getObject("XY_Plane"), [""])
sketch10.MapMode = "FlatFace"
sketch10.AttachmentOffset = App.Placement(V(0, 0, 6), App.Rotation())
sketch10.addGeometry(Part.LineSegment(V(166.4, 5.8, 0), V(172.5, 5.8, 0)), False)
sketch10.addGeometry(Part.LineSegment(V(172.5, 5.8, 0), V(166.4, 6.5, 0)), False)
sketch10.addGeometry(Part.LineSegment(V(166.4, 6.5, 0), V(166.4, 5.8, 0)), False)
sketch10.addGeometry(Part.LineSegment(V(172.5, 3.9, 0), V(166.4, 3.9, 0)), True)  # axis
sketch10.addConstraint(Sketcher.Constraint("Coincident", 0, 2, 1, 1))
sketch10.addConstraint(Sketcher.Constraint("Coincident", 1, 2, 2, 1))
sketch10.addConstraint(Sketcher.Constraint("Coincident", 2, 2, 0, 1))
sketch10.addConstraint(Sketcher.Constraint("Horizontal", 0))
sketch10.addConstraint(Sketcher.Constraint("Vertical", 2))
sketch10.addConstraint(Sketcher.Constraint("Horizontal", 3))
sketch10.addConstraint(Sketcher.Constraint("Vertical", 0, 2, 3, 1))
sketch10.addConstraint(Sketcher.Constraint("Vertical", 2, 2, 3, 2))
sketch10.addConstraint(Sketcher.Constraint("DistanceX", 0, 1, 0, 2, Q("6.1 mm")))
sketch10.addConstraint(Sketcher.Constraint("DistanceY", 3, 1, 1, 2, Q("2.6 mm")))
sketch10.addConstraint(Sketcher.Constraint("DistanceY", 2, 2, 2, 1, Q("0.6 mm")))
sketch10.addConstraint(Sketcher.Constraint("DistanceX", -1, 1, 0, 2, Q("172.5 mm")))
sketch10.addConstraint(Sketcher.Constraint("DistanceY", -1, 1, 0, 2, Q("5.85 mm")))
revolution = body.newObject("PartDesign::Revolution", "Revolution")
revolution.Profile = sketch10
revolution.ReferenceAxis = (sketch10, ["Axis0"])
revolution.Angle = 360

# Sketch on YZ plane
sketch11 = body.newObject("Sketcher::SketchObject", "Sketch010")
sketch11.AttachmentSupport = (doc.getObject("YZ_Plane"), [""])
sketch11.MapMode = "FlatFace"
sketch11.AttachmentOffset = App.Placement(V(0, 0, 161), App.Rotation())
sketch11.addGeometry(Part.Circle(V(3.9, 6, 0), V(0, 0, 1), 2.6), False)
sketch11.addGeometry(Part.Circle(V(3.9, 6, 0), V(0, 0, 1), 2), False)
sketch11.addConstraint(Sketcher.Constraint("Coincident", 1, 3, 0, 3))
sketch11.addConstraint(Sketcher.Constraint("Diameter", 0, Q("5.2 mm")))
sketch11.addConstraint(Sketcher.Constraint("Diameter", 1, Q("4 mm")))
sketch11.addConstraint(Sketcher.Constraint("DistanceY", -1, 1, 0, 3, Q("6 mm")))
sketch11.addConstraint(Sketcher.Constraint("DistanceX", -1, 1, 0, 3, Q("3.85 mm")))
pad9 = body.newObject("PartDesign::Pad", "Pad008")
pad9.Profile = sketch11
pad9.Length = 2

doc.recompute()
